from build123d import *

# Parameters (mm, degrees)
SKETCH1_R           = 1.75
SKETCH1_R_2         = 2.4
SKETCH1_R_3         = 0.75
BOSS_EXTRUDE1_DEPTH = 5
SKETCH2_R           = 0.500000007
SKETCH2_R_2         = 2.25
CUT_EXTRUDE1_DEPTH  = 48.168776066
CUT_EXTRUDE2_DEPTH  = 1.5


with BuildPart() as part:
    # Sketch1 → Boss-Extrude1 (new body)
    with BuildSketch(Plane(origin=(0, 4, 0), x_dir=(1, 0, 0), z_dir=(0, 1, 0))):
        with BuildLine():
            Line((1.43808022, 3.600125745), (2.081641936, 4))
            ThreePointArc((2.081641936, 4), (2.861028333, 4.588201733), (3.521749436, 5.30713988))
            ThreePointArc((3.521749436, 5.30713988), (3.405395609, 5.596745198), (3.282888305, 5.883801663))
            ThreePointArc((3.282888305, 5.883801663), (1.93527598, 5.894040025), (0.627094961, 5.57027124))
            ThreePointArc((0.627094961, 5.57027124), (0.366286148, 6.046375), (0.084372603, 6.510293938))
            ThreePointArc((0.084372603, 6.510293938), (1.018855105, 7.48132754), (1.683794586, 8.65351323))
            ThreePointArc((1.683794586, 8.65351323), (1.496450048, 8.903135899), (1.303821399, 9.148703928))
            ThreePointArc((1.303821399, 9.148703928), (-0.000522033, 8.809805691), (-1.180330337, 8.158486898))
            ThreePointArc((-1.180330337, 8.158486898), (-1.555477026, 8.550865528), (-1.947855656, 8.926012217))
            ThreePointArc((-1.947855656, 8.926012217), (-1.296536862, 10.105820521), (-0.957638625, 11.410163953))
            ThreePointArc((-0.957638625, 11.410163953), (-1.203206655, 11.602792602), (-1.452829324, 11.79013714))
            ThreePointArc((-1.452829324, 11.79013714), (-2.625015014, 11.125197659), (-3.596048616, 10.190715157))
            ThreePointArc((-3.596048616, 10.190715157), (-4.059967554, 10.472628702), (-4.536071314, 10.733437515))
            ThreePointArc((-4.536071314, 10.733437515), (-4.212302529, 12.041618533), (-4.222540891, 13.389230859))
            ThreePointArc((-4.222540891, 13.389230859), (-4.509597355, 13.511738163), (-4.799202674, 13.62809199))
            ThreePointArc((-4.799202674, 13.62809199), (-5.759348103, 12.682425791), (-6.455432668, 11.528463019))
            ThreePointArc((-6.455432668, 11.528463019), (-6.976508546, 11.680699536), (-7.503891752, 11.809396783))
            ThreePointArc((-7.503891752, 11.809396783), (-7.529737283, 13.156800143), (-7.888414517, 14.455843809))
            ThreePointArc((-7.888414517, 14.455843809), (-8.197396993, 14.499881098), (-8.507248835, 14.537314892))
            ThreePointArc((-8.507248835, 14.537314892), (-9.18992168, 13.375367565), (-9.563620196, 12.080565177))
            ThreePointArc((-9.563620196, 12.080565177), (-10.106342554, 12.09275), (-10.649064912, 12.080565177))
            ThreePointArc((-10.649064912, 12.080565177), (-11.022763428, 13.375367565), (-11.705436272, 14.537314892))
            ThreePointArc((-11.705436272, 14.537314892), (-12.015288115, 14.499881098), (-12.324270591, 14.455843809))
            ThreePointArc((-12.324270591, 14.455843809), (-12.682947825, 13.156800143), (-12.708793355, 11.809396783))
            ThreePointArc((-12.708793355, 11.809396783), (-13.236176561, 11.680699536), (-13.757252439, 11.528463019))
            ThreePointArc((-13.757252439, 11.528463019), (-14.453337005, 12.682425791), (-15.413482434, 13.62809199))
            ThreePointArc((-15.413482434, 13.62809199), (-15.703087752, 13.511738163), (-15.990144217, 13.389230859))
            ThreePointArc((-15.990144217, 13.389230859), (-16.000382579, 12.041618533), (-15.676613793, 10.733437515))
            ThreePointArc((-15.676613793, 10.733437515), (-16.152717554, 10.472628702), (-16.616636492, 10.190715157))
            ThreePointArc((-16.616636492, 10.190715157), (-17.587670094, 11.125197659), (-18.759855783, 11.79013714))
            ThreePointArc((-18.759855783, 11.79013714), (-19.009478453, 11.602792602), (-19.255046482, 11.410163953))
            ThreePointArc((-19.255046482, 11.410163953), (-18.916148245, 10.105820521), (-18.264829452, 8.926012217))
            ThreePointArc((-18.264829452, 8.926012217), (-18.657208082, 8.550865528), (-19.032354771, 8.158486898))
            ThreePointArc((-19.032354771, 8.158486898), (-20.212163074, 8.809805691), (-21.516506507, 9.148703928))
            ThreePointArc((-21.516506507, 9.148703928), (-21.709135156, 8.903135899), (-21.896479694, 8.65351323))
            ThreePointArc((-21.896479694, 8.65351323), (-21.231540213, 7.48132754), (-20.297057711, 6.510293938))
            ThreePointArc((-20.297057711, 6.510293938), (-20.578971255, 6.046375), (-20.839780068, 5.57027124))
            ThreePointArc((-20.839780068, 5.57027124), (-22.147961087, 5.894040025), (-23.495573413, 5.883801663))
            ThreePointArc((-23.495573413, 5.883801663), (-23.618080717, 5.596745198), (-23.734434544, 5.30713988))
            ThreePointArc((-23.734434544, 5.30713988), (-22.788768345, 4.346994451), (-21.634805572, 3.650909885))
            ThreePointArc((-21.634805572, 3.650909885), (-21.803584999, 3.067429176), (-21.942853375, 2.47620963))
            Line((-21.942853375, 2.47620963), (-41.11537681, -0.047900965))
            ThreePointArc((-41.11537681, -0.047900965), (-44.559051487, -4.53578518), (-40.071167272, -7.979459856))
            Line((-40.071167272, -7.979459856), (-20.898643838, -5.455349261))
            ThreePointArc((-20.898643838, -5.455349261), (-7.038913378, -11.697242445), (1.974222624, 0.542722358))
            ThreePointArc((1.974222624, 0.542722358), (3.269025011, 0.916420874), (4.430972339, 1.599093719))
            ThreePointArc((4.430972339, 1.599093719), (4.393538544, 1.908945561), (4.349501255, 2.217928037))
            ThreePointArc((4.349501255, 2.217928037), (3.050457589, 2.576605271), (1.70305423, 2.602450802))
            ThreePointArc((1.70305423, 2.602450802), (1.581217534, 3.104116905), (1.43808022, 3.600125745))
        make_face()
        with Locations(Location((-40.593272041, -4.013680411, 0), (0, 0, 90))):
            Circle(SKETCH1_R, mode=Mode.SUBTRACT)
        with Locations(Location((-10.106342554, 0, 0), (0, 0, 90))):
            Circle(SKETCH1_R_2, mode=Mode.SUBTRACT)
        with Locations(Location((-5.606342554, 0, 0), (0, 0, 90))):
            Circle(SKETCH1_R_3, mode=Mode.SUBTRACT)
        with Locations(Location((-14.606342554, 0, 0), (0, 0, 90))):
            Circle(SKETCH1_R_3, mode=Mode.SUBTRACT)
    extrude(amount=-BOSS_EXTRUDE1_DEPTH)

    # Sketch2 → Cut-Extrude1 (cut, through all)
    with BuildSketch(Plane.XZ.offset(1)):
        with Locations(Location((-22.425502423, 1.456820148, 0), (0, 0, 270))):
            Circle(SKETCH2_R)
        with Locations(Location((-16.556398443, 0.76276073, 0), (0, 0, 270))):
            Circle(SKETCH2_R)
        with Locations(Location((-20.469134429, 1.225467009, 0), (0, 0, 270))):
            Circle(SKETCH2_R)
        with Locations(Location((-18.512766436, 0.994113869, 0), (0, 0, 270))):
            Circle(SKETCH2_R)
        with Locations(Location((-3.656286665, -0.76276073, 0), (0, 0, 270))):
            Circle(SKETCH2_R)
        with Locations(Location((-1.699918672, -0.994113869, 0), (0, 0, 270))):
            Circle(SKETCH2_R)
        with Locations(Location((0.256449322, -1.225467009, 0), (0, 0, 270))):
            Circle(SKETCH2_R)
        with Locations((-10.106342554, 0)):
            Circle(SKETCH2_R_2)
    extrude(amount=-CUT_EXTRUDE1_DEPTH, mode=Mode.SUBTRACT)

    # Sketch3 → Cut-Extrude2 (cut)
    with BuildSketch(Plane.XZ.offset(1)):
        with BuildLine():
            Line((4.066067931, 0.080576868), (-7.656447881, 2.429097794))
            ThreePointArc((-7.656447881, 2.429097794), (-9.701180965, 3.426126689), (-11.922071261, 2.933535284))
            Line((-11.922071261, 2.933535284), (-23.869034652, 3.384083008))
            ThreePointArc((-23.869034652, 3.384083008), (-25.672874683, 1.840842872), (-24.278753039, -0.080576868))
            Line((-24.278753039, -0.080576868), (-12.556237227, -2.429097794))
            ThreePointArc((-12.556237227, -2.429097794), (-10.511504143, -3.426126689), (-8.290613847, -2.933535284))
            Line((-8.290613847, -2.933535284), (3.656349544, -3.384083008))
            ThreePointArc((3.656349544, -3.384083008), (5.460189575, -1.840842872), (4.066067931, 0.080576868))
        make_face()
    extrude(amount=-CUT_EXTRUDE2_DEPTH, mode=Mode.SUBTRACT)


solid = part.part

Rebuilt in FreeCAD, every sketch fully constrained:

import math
import FreeCAD as App
import Part
import Sketcher

V = App.Vector
Q = App.Units.Quantity

doc = App.newDocument("Part")
params = doc.addObject("Spreadsheet::Sheet", "Params")
for row, (alias, value) in enumerate([
    ("sketch1_radius", "4 mm"),
    ("sketch1_diameter", "3.5 mm"),
    ("sketch1_diameter2", "1.5 mm"),
    ("sketch1_diameter3", "4.8 mm"),
    ("sketch1_radius2", "5.4 mm"),
    ("pad1_length", "5 mm"),
    ("sketch2_diameter", "1 mm"),
    ("sketch2_diameter2", "4.5 mm"),
    ("sketch3_radius", "3.45 mm"),
    ("sketch3_radius2", "1.75 mm"),
    ("pocket2_length", "1.5 mm"),
], start=1):
    params.set(f"A{row}", alias)
    params.set(f"B{row}", "=" + value)
    params.setAlias(f"B{row}", alias)

body = doc.addObject("PartDesign::Body", "Body")

# Sketch on XZ plane
sketch1 = doc.addObject("Sketcher::SketchObject", "Sketch")
body.addObject(sketch1)
sketch1.AttachmentSupport = (doc.XZ_Plane, [""])
sketch1.MapMode = "FlatFace"
sketch1.AttachmentOffset = App.Placement(V(0, 0, -4), App.Rotation())
sketch1.addGeometry([
    Part.LineSegment(V(1.4, -3.6, 0), V(2.1, -4, 0)),  # 0
    Part.ArcOfCircle(Part.Circle(V(-0.8, -8.6, 0), V(0, 0, 1), 5.4), math.radians(37), math.radians(58)),  # 1
    Part.ArcOfCircle(Part.Circle(V(-10.1, 0, 0), V(0, 0, 1), 14.6), math.radians(-23.72), math.radians(-21.28)),  # 2
    Part.ArcOfCircle(Part.Circle(V(2.6, -0.5, 0), V(0, 0, 1), 5.4), math.radians(-111), math.radians(-82)),  # 3
    Part.ArcOfCircle(Part.Circle(V(-10.1, 0, 0), V(0, 0, 1), 12.1), math.radians(-32.57), math.radians(-27.43)),  # 4
    Part.ArcOfCircle(Part.Circle(V(-3.3, -10.7, 0), V(0, 0, 1), 5.4), math.radians(22), math.radians(51)),  # 5
    Part.ArcOfCircle(Part.Circle(V(-10.1, 0, 0), V(0, 0, 1), 14.6), math.radians(-38.72), math.radians(-36.28)),  # 6
    Part.ArcOfCircle(Part.Circle(V(2, -3.8, 0), V(0, 0, 1), 5.4), math.radians(-126), math.radians(-97)),  # 7
    Part.ArcOfCircle(Part.Circle(V(-10.1, 0, 0), V(0, 0, 1), 12.1), math.radians(-47.57), math.radians(-42.43)),  # 8
    Part.ArcOfCircle(Part.Circle(V(-6.3, -12.1, 0), V(0, 0, 1), 5.4), math.radians(7), math.radians(36)),  # 9
    Part.ArcOfCircle(Part.Circle(V(-10.1, 0, 0), V(0, 0, 1), 14.6), math.radians(-53.72), math.radians(-51.28)),  # 10
    Part.ArcOfCircle(Part.Circle(V(0.6, -6.8, 0), V(0, 0, 1), 5.4), math.radians(-141), math.radians(-112)),  # 11
    Part.ArcOfCircle(Part.Circle(V(-10.1, 0, 0), V(0, 0, 1), 12.1), math.radians(-62.57), math.radians(-57.43)),  # 12
    Part.ArcOfCircle(Part.Circle(V(-9.6, -12.7, 0), V(0, 0, 1), 5.4), math.radians(-8), math.radians(21)),  # 13
    Part.ArcOfCircle(Part.Circle(V(-10.1, 0, 0), V(0, 0, 1), 14.6), math.radians(-68.72), math.radians(-66.28)),  # 14
    Part.ArcOfCircle(Part.Circle(V(-1.5, -9.3, 0), V(0, 0, 1), 5.4), math.radians(-156), math.radians(-127)),  # 15
    Part.ArcOfCircle(Part.Circle(V(-10.1, 0, 0), V(0, 0, 1), 12.1), math.radians(-77.57), math.radians(-72.43)),  # 16
    Part.ArcOfCircle(Part.Circle(V(-12.9, -12.4, 0), V(0, 0, 1), 5.4), math.radians(-23), math.radians(6)),  # 17
    Part.ArcOfCircle(Part.Circle(V(-10.1, 0, 0), V(0, 0, 1), 14.6), math.radians(-83.72), math.radians(-81.28)),  # 18
    Part.ArcOfCircle(Part.Circle(V(-4.2, -11.2, 0), V(0, 0, 1), 5.4), math.radians(-171), math.radians(-142)),  # 19
    Part.ArcOfCircle(Part.Circle(V(-10.1, 0, 0), V(0, 0, 1), 12.1), math.radians(-92.57), math.radians(-87.43)),  # 20
    Part.ArcOfCircle(Part.Circle(V(-16, -11.2, 0), V(0, 0, 1), 5.4), math.radians(-38), math.radians(-9)),  # 21
    Part.ArcOfCircle(Part.Circle(V(-10.1, 0, 0), V(0, 0, 1), 14.6), math.radians(-98.72), math.radians(-96.28)),  # 22
    Part.ArcOfCircle(Part.Circle(V(-7.3, -12.4, 0), V(0, 0, 1), 5.4), math.radians(174), math.radians(203)),  # 23
    Part.ArcOfCircle(Part.Circle(V(-10.1, 0, 0), V(0, 0, 1), 12.1), math.radians(-107.57), math.radians(-102.43)),  # 24
    Part.ArcOfCircle(Part.Circle(V(-18.7, -9.3, 0), V(0, 0, 1), 5.4), math.radians(-53), math.radians(-24)),  # 25
    Part.ArcOfCircle(Part.Circle(V(-10.1, 0, 0), V(0, 0, 1), 14.6), math.radians(-113.72), math.radians(-111.28)),  # 26
    Part.ArcOfCircle(Part.Circle(V(-10.6, -12.7, 0), V(0, 0, 1), 5.4), math.radians(159), math.radians(188)),  # 27
    Part.ArcOfCircle(Part.Circle(V(-10.1, 0, 0), V(0, 0, 1), 12.1), math.radians(-122.57), math.radians(-117.43)),  # 28
    Part.ArcOfCircle(Part.Circle(V(-20.8, -6.8, 0), V(0, 0, 1), 5.4), math.radians(-68), math.radians(-39)),  # 29
    Part.ArcOfCircle(Part.Circle(V(-10.1, 0, 0), V(0, 0, 1), 14.6), math.radians(-128.72), math.radians(-126.28)),  # 30
    Part.ArcOfCircle(Part.Circle(V(-13.9, -12.1, 0), V(0, 0, 1), 5.4), math.radians(144), math.radians(173)),  # 31
    Part.ArcOfCircle(Part.Circle(V(-10.1, 0, 0), V(0, 0, 1), 12.1), math.radians(-137.57), math.radians(-132.43)),  # 32
    Part.ArcOfCircle(Part.Circle(V(-22.2, -3.8, 0), V(0, 0, 1), 5.4), math.radians(-83), math.radians(-54)),  # 33
    Part.ArcOfCircle(Part.Circle(V(-10.1, 0, 0), V(0, 0, 1), 14.6), math.radians(-143.72), math.radians(-141.28)),  # 34
    Part.ArcOfCircle(Part.Circle(V(-16.9, -10.7, 0), V(0, 0, 1), 5.4), math.radians(129), math.radians(158)),  # 35
    Part.ArcOfCircle(Part.Circle(V(-10.1, 0, 0), V(0, 0, 1), 12.1), math.radians(-152.57), math.radians(-147.43)),  # 36
    Part.ArcOfCircle(Part.Circle(V(-22.8, -0.5, 0), V(0, 0, 1), 5.4), math.radians(-98), math.radians(-69)),  # 37
    Part.ArcOfCircle(Part.Circle(V(-10.1, 0, 0), V(0, 0, 1), 14.6), math.radians(-158.72), math.radians(-156.28)),  # 38
    Part.ArcOfCircle(Part.Circle(V(-19.4, -8.6, 0), V(0, 0, 1), 5.4), math.radians(114), math.radians(143)),  # 39
    Part.ArcOfCircle(Part.Circle(V(-10.1, 0, 0), V(0, 0, 1), 12.1), math.radians(-168.18), math.radians(-162.43)),  # 40
    Part.LineSegment(V(-21.9, -2.5, 0), V(-41.1, 0, 0)),  # 41
    Part.ArcOfCircle(Part.Circle(V(-40.6, 4, 0), V(0, 0, 1), 4), math.radians(82), math.radians(263)),  # 42
    Part.LineSegment(V(-40.1, 8, 0), V(-20.9, 5.5, 0)),  # 43
    Part.ArcOfCircle(Part.Circle(V(-10.1, 0, 0), V(0, 0, 1), 12.1), math.radians(-3), math.radians(153)),  # 44
    Part.ArcOfCircle(Part.Circle(V(1.1, -5.9, 0), V(0, 0, 1), 5.4), math.radians(52), math.radians(81)),  # 45
    Part.ArcOfCircle(Part.Circle(V(-10.1, 0, 0), V(0, 0, 1), 14.6), math.radians(-8.72), math.radians(-6.28)),  # 46
    Part.ArcOfCircle(Part.Circle(V(2.3, 2.8, 0), V(0, 0, 1), 5.4), math.radians(-96), math.radians(-67)),  # 47
    Part.ArcOfCircle(Part.Circle(V(-10.1, 0, 0), V(0, 0, 1), 12.1), math.radians(-17.32), math.radians(-12.43)),  # 48
    Part.Circle(V(-40.6, 4, 0), V(0, 0, 1), 1.8),  # 49
    Part.Circle(V(-14.6, 0, 0), V(0, 0, 1), 0.8),  # 50
    Part.Circle(V(-10.1, 0, 0), V(0, 0, 1), 2.4),  # 51
    Part.Circle(V(-5.6, 0, 0), V(0, 0, 1), 0.8),  # 52
], False)
sketch1.addConstraint([
    Sketcher.Constraint("Tangent", 0, 2, 1, 2),
    Sketcher.Constraint("Coincident", 1, 1, 2, 2),
    Sketcher.Constraint("Coincident", 2, 1, 3, 2),
    Sketcher.Constraint("Coincident", 3, 1, 4, 2),
    Sketcher.Constraint("Coincident", 4, 1, 5, 2),
    Sketcher.Constraint("Coincident", 5, 1, 6, 2),
    Sketcher.Constraint("Coincident", 6, 1, 7, 2),
    Sketcher.Constraint("Coincident", 7, 1, 8, 2),
    Sketcher.Constraint("Coincident", 8, 1, 9, 2),
    Sketcher.Constraint("Coincident", 9, 1, 10, 2),
    Sketcher.Constraint("Coincident", 10, 1, 11, 2),
    Sketcher.Constraint("Coincident", 11, 1, 12, 2),
    Sketcher.Constraint("Coincident", 12, 1, 13, 2),
    Sketcher.Constraint("Coincident", 13, 1, 14, 2),
    Sketcher.Constraint("Coincident", 14, 1, 15, 2),
    Sketcher.Constraint("Coincident", 15, 1, 16, 2),
    Sketcher.Constraint("Coincident", 16, 1, 17, 2),
    Sketcher.Constraint("Coincident", 17, 1, 18, 2),
    Sketcher.Constraint("Coincident", 18, 1, 19, 2),
    Sketcher.Constraint("Coincident", 19, 1, 20, 2),
    Sketcher.Constraint("Coincident", 20, 1, 21, 2),
    Sketcher.Constraint("Coincident", 21, 1, 22, 2),
    Sketcher.Constraint("Coincident", 22, 1, 23, 2),
    Sketcher.Constraint("Coincident", 23, 1, 24, 2),
    Sketcher.Constraint("Coincident", 24, 1, 25, 2),
    Sketcher.Constraint("Coincident", 25, 1, 26, 2),
    Sketcher.Constraint("Coincident", 26, 1, 27, 2),
    Sketcher.Constraint("Coincident", 27, 1, 28, 2),
    Sketcher.Constraint("Coincident", 28, 1, 29, 2),
    Sketcher.Constraint("Coincident", 29, 1, 30, 2),
    Sketcher.Constraint("Coincident", 30, 1, 31, 2),
    Sketcher.Constraint("Coincident", 31, 1, 32, 2),
    Sketcher.Constraint("Coincident", 32, 1, 33, 2),
    Sketcher.Constraint("Coincident", 33, 1, 34, 2),
    Sketcher.Constraint("Coincident", 34, 1, 35, 2),
    Sketcher.Constraint("Coincident", 35, 1, 36, 2),
    Sketcher.Constraint("Coincident", 36, 1, 37, 2),
    Sketcher.Constraint("Coincident", 37, 1, 38, 2),
    Sketcher.Constraint("Coincident", 38, 1, 39, 2),
    Sketcher.Constraint("Coincident", 39, 1, 40, 2),
    Sketcher.Constraint("Coincident", 40, 1, 41, 1),
    Sketcher.Constraint("Tangent", 41, 2, 42, 2),
    Sketcher.Constraint("Tangent", 42, 1, 43, 1),
    Sketcher.Constraint("Coincident", 43, 2, 44, 2),
    Sketcher.Constraint("Coincident", 44, 1, 45, 2),
    Sketcher.Constraint("Coincident", 45, 1, 46, 2),
    Sketcher.Constraint("Coincident", 46, 1, 47, 2),
    Sketcher.Constraint("Coincident", 47, 1, 48, 2),
    Sketcher.Constraint("Coincident", 48, 1, 0, 1),
    Sketcher.Constraint("Coincident", 4, 3, 2, 3),
    Sketcher.Constraint("Coincident", 6, 3, 2, 3),
    Sketcher.Constraint("Coincident", 8, 3, 2, 3),
    Sketcher.Constraint("Coincident", 10, 3, 2, 3),
    Sketcher.Constraint("Coincident", 12, 3, 2, 3),
    Sketcher.Constraint("Coincident", 14, 3, 2, 3),
    Sketcher.Constraint("Coincident", 16, 3, 2, 3),
    Sketcher.Constraint("Coincident", 18, 3, 2, 3),
    Sketcher.Constraint("Coincident", 20, 3, 2, 3),
    Sketcher.Constraint("Coincident", 22, 3, 2, 3),
    Sketcher.Constraint("Coincident", 24, 3, 2, 3),
    Sketcher.Constraint("Coincident", 26, 3, 2, 3),
    Sketcher.Constraint("Coincident", 28, 3, 2, 3),
    Sketcher.Constraint("Coincident", 30, 3, 2, 3),
    Sketcher.Constraint("Coincident", 32, 3, 2, 3),
    Sketcher.Constraint("Coincident", 34, 3, 2, 3),
    Sketcher.Constraint("Coincident", 36, 3, 2, 3),
    Sketcher.Constraint("Coincident", 38, 3, 2, 3),
    Sketcher.Constraint("Coincident", 40, 3, 2, 3),
    Sketcher.Constraint("Coincident", 44, 3, 2, 3),
    Sketcher.Constraint("Coincident", 46, 3, 2, 3),
    Sketcher.Constraint("Coincident", 48, 3, 2, 3),
    Sketcher.Constraint("Coincident", 49, 3, 42, 3),
    Sketcher.Constraint("Coincident", 51, 3, 2, 3),
    Sketcher.Constraint("Equal", 1, 3),
    Sketcher.Constraint("Equal", 3, 5),
    Sketcher.Constraint("Equal", 2, 6),
    Sketcher.Constraint("Equal", 5, 7),
    Sketcher.Constraint("Equal", 4, 8),
    Sketcher.Constraint("Equal", 7, 9),
    Sketcher.Constraint("Equal", 6, 10),
    Sketcher.Constraint("Equal", 9, 11),
    Sketcher.Constraint("Equal", 8, 12),
    Sketcher.Constraint("Equal", 11, 13),
    Sketcher.Constraint("Equal", 6, 14),
    Sketcher.Constraint("Equal", 13, 15),
    Sketcher.Constraint("Equal", 12, 16),
    Sketcher.Constraint("Equal", 15, 17),
    Sketcher.Constraint("Equal", 14, 18),
    Sketcher.Constraint("Equal", 17, 19),
    Sketcher.Constraint("Equal", 16, 20),
    Sketcher.Constraint("Equal", 19, 21),
    Sketcher.Constraint("Equal", 18, 22),
    Sketcher.Constraint("Equal", 21, 23),
    Sketcher.Constraint("Equal", 20, 24),
    Sketcher.Constraint("Equal", 23, 25),
    Sketcher.Constraint("Equal", 14, 26),
    Sketcher.Constraint("Equal", 25, 27),
    Sketcher.Constraint("Equal", 24, 28),
    Sketcher.Constraint("Equal", 27, 29),
    Sketcher.Constraint("Equal", 26, 30),
    Sketcher.Constraint("Equal", 29, 31),
    Sketcher.Constraint("Equal", 28, 32),
    Sketcher.Constraint("Equal", 31, 33),
    Sketcher.Constraint("Equal", 30, 34),
    Sketcher.Constraint("Equal", 33, 35),
    Sketcher.Constraint("Equal", 32, 36),
    Sketcher.Constraint("Equal", 35, 37),
    Sketcher.Constraint("Equal", 34, 38),
    Sketcher.Constraint("Equal", 37, 39),
    Sketcher.Constraint("Equal", 36, 40),
    Sketcher.Constraint("Equal", 40, 44),
    Sketcher.Constraint("Equal", 39, 45),
    Sketcher.Constraint("Equal", 38, 46),
    Sketcher.Constraint("Equal", 45, 47),
    Sketcher.Constraint("Equal", 44, 48),
    Sketcher.Constraint("Equal", 50, 52),
    Sketcher.Constraint("PointOnObject", 2, 3, -1),
    Sketcher.Constraint("PointOnObject", 50, 3, -1),
    Sketcher.Constraint("PointOnObject", 52, 3, -1),
    Sketcher.Constraint("Parallel", 41, 43),
    Sketcher.Constraint("Horizontal", 19, 3, 21, 3),
    Sketcher.Constraint("Horizontal", 17, 3, 23, 3),
    Sketcher.Constraint("Horizontal", 15, 3, 25, 3),
    Sketcher.Constraint("Horizontal", 13, 3, 27, 3),
    Sketcher.Constraint("Horizontal", 11, 3, 29, 3),
    Sketcher.Constraint("Horizontal", 9, 3, 31, 3),
    Sketcher.Constraint("Horizontal", 7, 3, 33, 3),
    Sketcher.Constraint("Horizontal", 5, 3, 35, 3),
    Sketcher.Constraint("Horizontal", 3, 3, 37, 3),
    Sketcher.Constraint("Horizontal", 1, 3, 39, 3),
    Sketcher.Constraint("Horizontal", 19, 1, 20, 1),
    Sketcher.Constraint("Horizontal", 17, 1, 22, 1),
    Sketcher.Constraint("Horizontal", 15, 1, 24, 1),
    Sketcher.Constraint("Horizontal", 13, 1, 26, 1),
    Sketcher.Constraint("Horizontal", 11, 1, 28, 1),
    Sketcher.Constraint("Horizontal", 9, 1, 30, 1),
    Sketcher.Constraint("Horizontal", 7, 1, 32, 1),
    Sketcher.Constraint("Horizontal", 5, 1, 34, 1),
    Sketcher.Constraint("Horizontal", 3, 1, 36, 1),
    Sketcher.Constraint("Horizontal", 1, 1, 38, 1),
    Sketcher.Constraint("Equal", 41, 43),
    Sketcher.Constraint("Radius", 42, Q("4 mm")),
    Sketcher.Constraint("Diameter", 49, Q("3.5 mm")),
    Sketcher.Constraint("Diameter", 50, Q("1.5 mm")),
    Sketcher.Constraint("Diameter", 51, Q("4.8 mm")),
    Sketcher.Constraint("Radius", 1, Q("5.4 mm")),
    Sketcher.Constraint("DistanceY", 0, 2, -1, 1, Q("4 mm")),
    Sketcher.Constraint("Angle", 41, Q("172.5 deg")),
    Sketcher.Constraint("Radius", 2, Q("14.625 mm")),
    Sketcher.Constraint("Radius", 4, Q("12.09275 mm")),
    Sketcher.Constraint("DistanceX", 21, 3, -1, 1, Q("15.9836 mm")),
    Sketcher.Constraint("DistanceY", 2, 1, -1, 1, Q("5.883802 mm")),
    Sketcher.Constraint("DistanceY", -1, 1, 41, 2, Q("0.047901 mm")),
    Sketcher.Constraint("DistanceX", -1, 1, 46, 1, Q("4.349501 mm")),
    Sketcher.Constraint("DistanceX", 1, 3, -1, 1, Q("0.768289 mm")),
    Sketcher.Constraint("DistanceY", 1, 3, -1, 1, Q("8.586708 mm")),
    Sketcher.Constraint("DistanceY", 3, 3, -1, 1, Q("0.531281 mm")),
    Sketcher.Constraint("DistanceX", 5, 3, -1, 1, Q("3.308879 mm")),
    Sketcher.Constraint("DistanceY", 5, 3, -1, 1, Q("10.710989 mm")),
    Sketcher.Constraint("DistanceX", -1, 1, 7, 3, Q("1.998992 mm")),
    Sketcher.Constraint("DistanceX", 13, 3, -1, 1, Q("9.575061 mm")),
    Sketcher.Constraint("DistanceY", 13, 3, -1, 1, Q("12.674721 mm")),
    Sketcher.Constraint("DistanceY", 19, 3, -1, 1, Q("11.242271 mm")),
    Sketcher.Constraint("DistanceX", 23, 3, -1, 1, Q("7.339062 mm")),
    Sketcher.Constraint("DistanceX", 25, 3, -1, 1, Q("18.693051 mm")),
    Sketcher.Constraint("DistanceX", 29, 3, -1, 1, Q("20.817332 mm")),
    Sketcher.Constraint("DistanceX", 31, 3, -1, 1, Q("13.89998 mm")),
    Sketcher.Constraint("DistanceX", -1, 1, 45, 3, Q("1.135928 mm")),
    Sketcher.Constraint("DistanceY", -1, 1, 47, 3, Q("2.767281 mm")),
    Sketcher.Constraint("DistanceX", -1, 1, 1, 1, Q("3.521749 mm")),
    Sketcher.Constraint("DistanceX", -1, 1, 6, 1, Q("1.303821 mm")),
    Sketcher.Constraint("DistanceX", 9, 1, -1, 1, Q("0.957639 mm")),
    Sketcher.Constraint("DistanceX", 10, 1, -1, 1, Q("1.452829 mm")),
    Sketcher.Constraint("DistanceY", 14, 1, -1, 1, Q("13.628092 mm")),
    Sketcher.Constraint("DistanceX", 16, 1, -1, 1, Q("7.503892 mm")),
    Sketcher.Constraint("DistanceY", 45, 3, -1, 1, Q("5.877257 mm")),
    Sketcher.Constraint("DistanceX", 50, 3, -1, 1, Q("14.606343 mm")),
    Sketcher.Constraint("DistanceX", 52, 3, -1, 1, Q("5.606343 mm")),
])
sketch1.setExpression("Constraints[141]", "Params.sketch1_radius")
sketch1.setExpression("Constraints[142]", "Params.sketch1_diameter")
sketch1.setExpression("Constraints[143]", "Params.sketch1_diameter2")
sketch1.setExpression("Constraints[144]", "Params.sketch1_diameter3")
sketch1.setExpression("Constraints[145]", "Params.sketch1_radius2")
pad1 = doc.addObject("PartDesign::Pad", "Pad")
body.addObject(pad1)
pad1.Profile = sketch1
pad1.setExpression("Length", "Params.pad1_length")

# Sketch on XZ plane
sketch2 = doc.addObject("Sketcher::SketchObject", "Sketch001")
body.addObject(sketch2)
sketch2.AttachmentSupport = (doc.XZ_Plane, [""])
sketch2.MapMode = "FlatFace"
sketch2.AttachmentOffset = App.Placement(V(0, 0, 1), App.Rotation())
sketch2.addGeometry([
    Part.Circle(V(-22.4, 1.5, 0), V(0, 0, 1), 0.5),  # 0
    Part.Circle(V(-16.6, 0.8, 0), V(0, 0, 1), 0.5),  # 1
    Part.Circle(V(-20.5, 1.2, 0), V(0, 0, 1), 0.5),  # 2
    Part.Circle(V(-18.5, 1, 0), V(0, 0, 1), 0.5),  # 3
    Part.Circle(V(-3.7, -0.8, 0), V(0, 0, 1), 0.5),  # 4
    Part.Circle(V(-1.7, -1, 0), V(0, 0, 1), 0.5),  # 5
    Part.Circle(V(0.3, -1.2, 0), V(0, 0, 1), 0.5),  # 6
    Part.Circle(V(-10.1, 0, 0), V(0, 0, 1), 2.2),  # 7
], False)
sketch2.addConstraint([
    Sketcher.Constraint("Equal", 0, 1),
    Sketcher.Constraint("Equal", 1, 2),
    Sketcher.Constraint("Equal", 2, 3),
    Sketcher.Constraint("Equal", 3, 4),
    Sketcher.Constraint("Equal", 4, 5),
    Sketcher.Constraint("Equal", 5, 6),
    Sketcher.Constraint("PointOnObject", 7, 3, -1),
    Sketcher.Constraint("Diameter", 0, Q("1 mm")),
    Sketcher.Constraint("Diameter", 7, Q("4.5 mm")),
    Sketcher.Constraint("DistanceX", 1, 3, -1, 1, Q("16.556398 mm")),
    Sketcher.Constraint("DistanceY", -1, 1, 0, 3, Q("1.45682 mm")),
    Sketcher.Constraint("DistanceY", -1, 1, 1, 3, Q("0.762761 mm")),
    Sketcher.Constraint("DistanceY", 4, 3, -1, 1, Q("0.762761 mm")),
    Sketcher.Constraint("DistanceX", 5, 3, -1, 1, Q("1.699919 mm")),
    Sketcher.Constraint("DistanceX", -1, 1, 6, 3, Q("0.256449 mm")),
    Sketcher.Constraint("DistanceX", 1, 3, 4, 3, Q("12.900112 mm")),
    Sketcher.Constraint("DistanceX", 3, 3, 4, 3, Q("14.85648 mm")),
    Sketcher.Constraint("DistanceY", 5, 3, 2, 3, Q("2.219581 mm")),
    Sketcher.Constraint("DistanceY", 6, 3, 3, 3, Q("2.219581 mm")),
    Sketcher.Constraint("DistanceX", 2, 3, 7, 3, Q("10.362792 mm")),
    Sketcher.Constraint("DistanceX", 0, 3, -1, 1, Q("22.425502 mm")),
    Sketcher.Constraint("DistanceX", 2, 3, -1, 1, Q("20.469134 mm")),
    Sketcher.Constraint("DistanceY", -1, 1, 2, 3, Q("1.225467 mm")),
    Sketcher.Constraint("DistanceY", -1, 1, 3, 3, Q("0.994114 mm")),
])
sketch2.setExpression("Constraints[7]", "Params.sketch2_diameter")
sketch2.setExpression("Constraints[8]", "Params.sketch2_diameter2")
pocket1 = doc.addObject("PartDesign::Pocket", "Pocket")
body.addObject(pocket1)
pocket1.Profile = sketch2
pocket1.Type = "ThroughAll"

# Sketch on XZ plane
sketch3 = doc.addObject("Sketcher::SketchObject", "Sketch002")
body.addObject(sketch3)
sketch3.AttachmentSupport = (doc.XZ_Plane, [""])
sketch3.MapMode = "FlatFace"
sketch3.AttachmentOffset = App.Placement(V(0, 0, 1), App.Rotation())
sketch3.addGeometry([
    Part.LineSegment(V(4.1, 0.1, 0), V(-7.7, 2.4, 0)),  # 0
    Part.ArcOfCircle(Part.Circle(V(-10.1, 0, 0), V(0, 0, 1), 3.4), math.radians(45), math.radians(122)),  # 1
    Part.LineSegment(V(-11.9, 2.9, 0), V(-23.9, 3.4, 0)),  # 2
    Part.ArcOfCircle(Part.Circle(V(-23.9, 1.6, 0), V(0, 0, 1), 1.8), math.radians(88), math.radians(259)),  # 3
    Part.LineSegment(V(-24.3, -0.1, 0), V(-12.6, -2.4, 0)),  # 4
    Part.ArcOfCircle(Part.Circle(V(-10.1, 0, 0), V(0, 0, 1), 3.4), math.radians(-135), math.radians(-58)),  # 5
    Part.LineSegment(V(-8.3, -2.9, 0), V(3.7, -3.4, 0)),  # 6
    Part.ArcOfCircle(Part.Circle(V(3.7, -1.6, 0), V(0, 0, 1), 1.8), math.radians(-92), math.radians(79)),  # 7
], False)
sketch3.addConstraint([
    Sketcher.Constraint("Coincident", 0, 2, 1, 1),
    Sketcher.Constraint("Coincident", 1, 2, 2, 1),
    Sketcher.Constraint("Tangent", 2, 2, 3, 1),
    Sketcher.Constraint("Tangent", 3, 2, 4, 1),
    Sketcher.Constraint("Coincident", 4, 2, 5, 1),
    Sketcher.Constraint("Coincident", 5, 2, 6, 1),
    Sketcher.Constraint("Tangent", 6, 2, 7, 1),
    Sketcher.Constraint("Tangent", 7, 2, 0, 1),
    Sketcher.Constraint("Coincident", 5, 3, 1, 3),
    Sketcher.Constraint("Equal", 1, 5),
    Sketcher.Constraint("Equal", 3, 7),
    Sketcher.Constraint("PointOnObject", 1, 3, -1),
    Sketcher.Constraint("Parallel", 0, 4),
    Sketcher.Constraint("Parallel", 2, 6),
    Sketcher.Constraint("Equal", 0, 2),
    Sketcher.Constraint("Equal", 2, 4),
    Sketcher.Constraint("Equal", 4, 6),
    Sketcher.Constraint("Radius", 1, Q("3.45 mm")),
    Sketcher.Constraint("Radius", 3, Q("1.75 mm")),
    Sketcher.Constraint("DistanceX", -1, 1, 7, 3, Q("3.722299 mm")),
    Sketcher.Constraint("DistanceX", 1, 2, -1, 1, Q("11.922071 mm")),
    Sketcher.Constraint("DistanceX", -1, 1, 6, 2, Q("3.65635 mm")),
    Sketcher.Constraint("DistanceX", 3, 3, 1, 3, Q("13.828642 mm")),
])
sketch3.setExpression("Constraints[17]", "Params.sketch3_radius")
sketch3.setExpression("Constraints[18]", "Params.sketch3_radius2")
pocket2 = doc.addObject("PartDesign::Pocket", "Pocket001")
body.addObject(pocket2)
pocket2.Profile = sketch3
pocket2.setExpression("Length", "Params.pocket2_length")

doc.recompute()
